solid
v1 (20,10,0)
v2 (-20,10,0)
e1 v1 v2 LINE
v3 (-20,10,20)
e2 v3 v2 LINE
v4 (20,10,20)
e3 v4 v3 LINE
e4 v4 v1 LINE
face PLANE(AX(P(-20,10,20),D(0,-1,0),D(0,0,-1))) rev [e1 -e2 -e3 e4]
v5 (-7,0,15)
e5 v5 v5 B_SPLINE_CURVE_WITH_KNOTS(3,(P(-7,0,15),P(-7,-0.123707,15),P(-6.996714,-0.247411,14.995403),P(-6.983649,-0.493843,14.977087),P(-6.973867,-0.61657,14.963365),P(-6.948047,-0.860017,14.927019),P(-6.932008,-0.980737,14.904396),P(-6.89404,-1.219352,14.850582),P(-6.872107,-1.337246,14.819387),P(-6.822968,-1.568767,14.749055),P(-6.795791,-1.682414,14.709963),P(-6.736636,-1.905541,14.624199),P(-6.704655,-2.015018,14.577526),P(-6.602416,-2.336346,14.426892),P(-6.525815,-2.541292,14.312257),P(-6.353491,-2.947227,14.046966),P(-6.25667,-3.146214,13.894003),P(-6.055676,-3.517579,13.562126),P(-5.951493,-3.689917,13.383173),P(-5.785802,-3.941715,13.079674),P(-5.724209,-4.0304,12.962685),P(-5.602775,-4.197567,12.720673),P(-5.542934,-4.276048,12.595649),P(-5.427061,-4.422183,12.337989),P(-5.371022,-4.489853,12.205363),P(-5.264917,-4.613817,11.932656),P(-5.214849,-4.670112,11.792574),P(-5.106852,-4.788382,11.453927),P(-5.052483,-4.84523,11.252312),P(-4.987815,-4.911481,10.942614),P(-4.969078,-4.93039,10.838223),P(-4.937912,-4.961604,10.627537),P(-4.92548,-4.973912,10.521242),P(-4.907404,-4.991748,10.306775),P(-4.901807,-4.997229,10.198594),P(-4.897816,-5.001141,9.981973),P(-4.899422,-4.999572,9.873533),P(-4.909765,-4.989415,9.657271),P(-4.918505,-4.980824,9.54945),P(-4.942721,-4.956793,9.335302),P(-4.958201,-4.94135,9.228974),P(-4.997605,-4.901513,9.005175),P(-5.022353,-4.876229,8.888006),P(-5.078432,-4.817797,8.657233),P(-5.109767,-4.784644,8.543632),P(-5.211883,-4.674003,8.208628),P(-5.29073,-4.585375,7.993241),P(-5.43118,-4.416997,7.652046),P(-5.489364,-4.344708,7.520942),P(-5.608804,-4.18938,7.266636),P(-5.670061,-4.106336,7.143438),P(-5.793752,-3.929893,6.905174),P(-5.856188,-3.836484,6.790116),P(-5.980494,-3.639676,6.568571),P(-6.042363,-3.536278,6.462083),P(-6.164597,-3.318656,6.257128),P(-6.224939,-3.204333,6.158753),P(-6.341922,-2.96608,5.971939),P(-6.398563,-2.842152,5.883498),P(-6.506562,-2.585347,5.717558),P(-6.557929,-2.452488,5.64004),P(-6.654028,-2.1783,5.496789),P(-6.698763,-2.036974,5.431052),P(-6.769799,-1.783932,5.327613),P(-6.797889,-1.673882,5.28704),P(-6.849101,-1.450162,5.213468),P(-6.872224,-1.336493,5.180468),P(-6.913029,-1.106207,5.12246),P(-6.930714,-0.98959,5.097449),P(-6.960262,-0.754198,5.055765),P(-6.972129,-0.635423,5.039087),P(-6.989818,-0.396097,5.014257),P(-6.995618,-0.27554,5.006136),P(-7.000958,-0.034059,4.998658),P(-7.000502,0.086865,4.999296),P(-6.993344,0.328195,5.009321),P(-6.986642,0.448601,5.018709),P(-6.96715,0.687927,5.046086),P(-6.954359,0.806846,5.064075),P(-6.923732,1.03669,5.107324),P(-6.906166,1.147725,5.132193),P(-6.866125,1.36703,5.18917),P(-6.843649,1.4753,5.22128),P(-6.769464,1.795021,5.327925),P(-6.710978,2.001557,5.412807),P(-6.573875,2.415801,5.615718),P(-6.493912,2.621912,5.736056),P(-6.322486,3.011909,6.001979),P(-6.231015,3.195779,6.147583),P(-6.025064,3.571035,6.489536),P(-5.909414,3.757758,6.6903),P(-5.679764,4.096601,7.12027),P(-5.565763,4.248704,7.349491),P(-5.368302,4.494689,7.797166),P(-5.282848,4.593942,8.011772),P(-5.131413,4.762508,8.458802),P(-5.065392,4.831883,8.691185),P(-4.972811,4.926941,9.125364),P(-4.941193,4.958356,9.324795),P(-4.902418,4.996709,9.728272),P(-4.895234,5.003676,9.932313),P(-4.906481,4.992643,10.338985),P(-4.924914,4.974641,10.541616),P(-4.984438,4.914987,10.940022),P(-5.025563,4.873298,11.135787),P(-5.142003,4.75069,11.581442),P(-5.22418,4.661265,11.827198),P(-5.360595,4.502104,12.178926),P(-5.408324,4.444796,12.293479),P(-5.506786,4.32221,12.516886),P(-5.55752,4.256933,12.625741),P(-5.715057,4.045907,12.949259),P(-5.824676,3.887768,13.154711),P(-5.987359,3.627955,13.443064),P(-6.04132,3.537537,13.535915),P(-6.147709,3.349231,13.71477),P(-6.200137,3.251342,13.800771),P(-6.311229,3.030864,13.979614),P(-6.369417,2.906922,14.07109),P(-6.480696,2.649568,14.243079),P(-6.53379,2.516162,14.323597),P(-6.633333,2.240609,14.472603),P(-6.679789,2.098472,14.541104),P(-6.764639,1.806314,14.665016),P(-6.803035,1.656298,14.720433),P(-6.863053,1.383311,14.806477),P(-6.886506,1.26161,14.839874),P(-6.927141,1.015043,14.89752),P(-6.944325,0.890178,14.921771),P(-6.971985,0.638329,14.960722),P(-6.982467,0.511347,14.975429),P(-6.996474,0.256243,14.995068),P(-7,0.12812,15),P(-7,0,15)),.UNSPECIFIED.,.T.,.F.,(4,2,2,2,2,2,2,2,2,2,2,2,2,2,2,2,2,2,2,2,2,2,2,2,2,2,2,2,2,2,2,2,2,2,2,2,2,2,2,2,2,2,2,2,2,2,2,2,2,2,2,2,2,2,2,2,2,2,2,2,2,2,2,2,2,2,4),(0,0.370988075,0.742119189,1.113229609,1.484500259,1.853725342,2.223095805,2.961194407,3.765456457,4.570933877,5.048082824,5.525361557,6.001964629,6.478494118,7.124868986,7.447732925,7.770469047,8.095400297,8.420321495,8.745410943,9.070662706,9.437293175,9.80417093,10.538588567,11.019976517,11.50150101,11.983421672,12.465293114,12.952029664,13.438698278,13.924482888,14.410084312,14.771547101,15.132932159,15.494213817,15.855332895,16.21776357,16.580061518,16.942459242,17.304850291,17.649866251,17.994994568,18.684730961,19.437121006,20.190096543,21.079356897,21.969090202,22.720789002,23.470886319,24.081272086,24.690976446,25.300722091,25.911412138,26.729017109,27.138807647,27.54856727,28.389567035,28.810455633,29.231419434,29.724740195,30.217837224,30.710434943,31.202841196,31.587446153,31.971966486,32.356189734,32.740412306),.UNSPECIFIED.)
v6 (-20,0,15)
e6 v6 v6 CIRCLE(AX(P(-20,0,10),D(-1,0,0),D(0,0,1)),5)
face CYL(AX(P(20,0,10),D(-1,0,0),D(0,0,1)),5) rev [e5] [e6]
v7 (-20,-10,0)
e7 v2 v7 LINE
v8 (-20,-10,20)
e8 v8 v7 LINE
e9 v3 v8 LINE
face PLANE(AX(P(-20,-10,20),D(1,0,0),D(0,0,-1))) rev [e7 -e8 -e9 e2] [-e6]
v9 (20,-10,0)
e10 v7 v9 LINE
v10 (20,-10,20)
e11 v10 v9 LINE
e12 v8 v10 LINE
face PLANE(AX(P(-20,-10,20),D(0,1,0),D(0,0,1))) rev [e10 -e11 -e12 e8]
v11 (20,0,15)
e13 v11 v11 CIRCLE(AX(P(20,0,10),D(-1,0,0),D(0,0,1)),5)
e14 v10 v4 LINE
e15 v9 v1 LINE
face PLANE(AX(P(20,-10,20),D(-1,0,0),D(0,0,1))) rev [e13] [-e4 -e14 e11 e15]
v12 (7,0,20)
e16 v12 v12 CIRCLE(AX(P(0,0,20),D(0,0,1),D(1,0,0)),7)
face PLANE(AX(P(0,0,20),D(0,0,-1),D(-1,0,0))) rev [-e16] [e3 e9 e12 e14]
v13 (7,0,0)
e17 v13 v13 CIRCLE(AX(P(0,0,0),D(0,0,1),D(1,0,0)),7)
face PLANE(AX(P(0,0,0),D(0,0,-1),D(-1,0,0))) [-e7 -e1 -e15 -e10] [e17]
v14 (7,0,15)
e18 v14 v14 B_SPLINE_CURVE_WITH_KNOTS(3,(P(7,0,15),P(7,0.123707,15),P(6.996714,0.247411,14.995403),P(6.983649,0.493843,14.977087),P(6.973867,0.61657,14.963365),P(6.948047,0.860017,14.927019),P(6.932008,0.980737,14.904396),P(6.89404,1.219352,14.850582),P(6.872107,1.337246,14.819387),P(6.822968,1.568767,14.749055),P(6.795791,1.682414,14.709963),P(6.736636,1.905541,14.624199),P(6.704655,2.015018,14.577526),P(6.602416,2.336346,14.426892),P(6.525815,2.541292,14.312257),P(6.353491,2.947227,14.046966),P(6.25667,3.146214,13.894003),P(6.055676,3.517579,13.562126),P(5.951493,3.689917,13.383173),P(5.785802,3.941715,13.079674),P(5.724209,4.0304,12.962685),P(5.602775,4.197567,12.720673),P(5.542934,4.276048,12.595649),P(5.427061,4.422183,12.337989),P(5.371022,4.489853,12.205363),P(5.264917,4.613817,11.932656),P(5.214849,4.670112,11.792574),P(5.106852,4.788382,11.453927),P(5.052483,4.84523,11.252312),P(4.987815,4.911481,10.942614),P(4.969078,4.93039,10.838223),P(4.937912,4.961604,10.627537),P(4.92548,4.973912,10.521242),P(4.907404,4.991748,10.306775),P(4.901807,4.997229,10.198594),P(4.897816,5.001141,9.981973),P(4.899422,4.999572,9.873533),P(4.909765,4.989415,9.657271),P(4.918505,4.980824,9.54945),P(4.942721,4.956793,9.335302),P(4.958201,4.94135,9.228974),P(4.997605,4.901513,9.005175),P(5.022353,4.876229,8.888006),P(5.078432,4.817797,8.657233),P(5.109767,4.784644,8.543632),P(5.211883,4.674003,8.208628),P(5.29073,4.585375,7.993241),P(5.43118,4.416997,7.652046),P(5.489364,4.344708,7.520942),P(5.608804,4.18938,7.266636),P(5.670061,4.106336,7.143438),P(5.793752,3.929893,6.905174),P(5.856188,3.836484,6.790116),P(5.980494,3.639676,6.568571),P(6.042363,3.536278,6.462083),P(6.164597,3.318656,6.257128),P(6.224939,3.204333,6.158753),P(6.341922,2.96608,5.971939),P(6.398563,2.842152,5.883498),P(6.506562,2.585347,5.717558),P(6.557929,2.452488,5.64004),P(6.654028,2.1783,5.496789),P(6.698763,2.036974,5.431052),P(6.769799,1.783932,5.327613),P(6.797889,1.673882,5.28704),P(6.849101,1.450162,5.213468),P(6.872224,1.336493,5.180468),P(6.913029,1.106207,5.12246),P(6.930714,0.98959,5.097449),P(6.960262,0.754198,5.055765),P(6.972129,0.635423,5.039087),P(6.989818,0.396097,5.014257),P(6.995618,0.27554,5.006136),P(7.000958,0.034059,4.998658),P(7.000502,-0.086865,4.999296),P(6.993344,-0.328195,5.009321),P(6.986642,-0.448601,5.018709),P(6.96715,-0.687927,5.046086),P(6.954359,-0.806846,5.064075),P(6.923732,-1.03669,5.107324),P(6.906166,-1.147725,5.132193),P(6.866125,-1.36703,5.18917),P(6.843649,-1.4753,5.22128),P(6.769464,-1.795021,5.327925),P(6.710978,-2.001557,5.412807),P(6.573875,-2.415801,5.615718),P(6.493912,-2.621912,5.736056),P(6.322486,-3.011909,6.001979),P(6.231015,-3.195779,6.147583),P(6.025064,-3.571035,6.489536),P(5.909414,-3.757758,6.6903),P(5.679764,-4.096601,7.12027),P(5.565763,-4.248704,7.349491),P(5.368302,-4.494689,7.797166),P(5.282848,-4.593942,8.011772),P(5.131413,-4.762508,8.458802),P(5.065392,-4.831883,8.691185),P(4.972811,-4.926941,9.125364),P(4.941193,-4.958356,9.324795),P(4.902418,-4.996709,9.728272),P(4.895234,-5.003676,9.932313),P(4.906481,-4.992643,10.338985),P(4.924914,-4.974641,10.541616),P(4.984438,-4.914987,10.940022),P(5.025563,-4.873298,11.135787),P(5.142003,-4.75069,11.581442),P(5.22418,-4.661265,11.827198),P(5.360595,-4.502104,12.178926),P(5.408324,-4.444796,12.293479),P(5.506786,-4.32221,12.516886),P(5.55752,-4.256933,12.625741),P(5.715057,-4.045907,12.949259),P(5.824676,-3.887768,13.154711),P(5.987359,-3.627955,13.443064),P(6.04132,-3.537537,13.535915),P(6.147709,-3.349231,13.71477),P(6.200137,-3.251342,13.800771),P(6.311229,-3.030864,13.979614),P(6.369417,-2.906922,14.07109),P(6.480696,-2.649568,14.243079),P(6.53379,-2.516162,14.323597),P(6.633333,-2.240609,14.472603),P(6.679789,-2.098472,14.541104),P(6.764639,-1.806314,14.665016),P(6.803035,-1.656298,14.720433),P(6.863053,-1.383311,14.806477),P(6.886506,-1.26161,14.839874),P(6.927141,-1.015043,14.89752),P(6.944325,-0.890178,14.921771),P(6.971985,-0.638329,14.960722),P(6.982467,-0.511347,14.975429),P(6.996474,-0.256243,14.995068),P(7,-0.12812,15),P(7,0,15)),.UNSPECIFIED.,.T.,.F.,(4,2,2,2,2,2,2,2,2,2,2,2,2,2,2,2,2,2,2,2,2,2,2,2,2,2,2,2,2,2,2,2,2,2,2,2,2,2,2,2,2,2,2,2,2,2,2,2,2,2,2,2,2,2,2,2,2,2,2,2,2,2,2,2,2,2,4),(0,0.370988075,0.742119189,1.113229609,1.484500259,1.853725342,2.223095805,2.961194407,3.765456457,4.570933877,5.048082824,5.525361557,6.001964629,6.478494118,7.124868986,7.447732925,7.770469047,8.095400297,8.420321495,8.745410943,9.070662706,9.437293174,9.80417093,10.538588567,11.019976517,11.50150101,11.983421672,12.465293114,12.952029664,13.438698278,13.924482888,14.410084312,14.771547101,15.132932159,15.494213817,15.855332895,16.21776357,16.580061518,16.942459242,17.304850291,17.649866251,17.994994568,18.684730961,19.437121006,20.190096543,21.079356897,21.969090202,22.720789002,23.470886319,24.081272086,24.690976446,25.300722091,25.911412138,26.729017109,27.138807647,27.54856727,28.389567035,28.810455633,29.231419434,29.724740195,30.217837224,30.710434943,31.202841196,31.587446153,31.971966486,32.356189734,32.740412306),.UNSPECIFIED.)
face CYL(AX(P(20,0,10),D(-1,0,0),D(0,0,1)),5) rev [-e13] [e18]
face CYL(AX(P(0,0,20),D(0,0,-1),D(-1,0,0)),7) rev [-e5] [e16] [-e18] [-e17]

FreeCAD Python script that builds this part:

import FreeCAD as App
import Part
import Sketcher
from FreeCAD import Vector


def add_polygon(sketch, points):
    """Adds a closed chain of lines whose ends are joined by coincident constraints."""
    first, n = sketch.GeometryCount, len(points)
    for a, b in zip(points, points[1:] + points[:1]):
        sketch.addGeometry(Part.LineSegment(App.Vector(*a, 0), App.Vector(*b, 0)), False)
    for i in range(n):
        sketch.addConstraint(Sketcher.Constraint("Coincident", first + i, 2, first + (i + 1) % n, 1))

doc = App.newDocument("Part")
body = doc.addObject("PartDesign::Body", "Body")

sketch1 = doc.addObject("Sketcher::SketchObject", "Sketch")
body.addObject(sketch1)
sketch1.AttachmentSupport = (doc.XY_Plane, [""])
sketch1.MapMode = "FlatFace"
add_polygon(sketch1, [(-20, 10), (-20, -10), (20, -10), (20, 10)])
sketch1.addGeometry(Part.Circle(Vector(0, 0, 0), Vector(0, 0, 1), 7), False)
sketch1.addConstraint([
    Sketcher.Constraint("Vertical", 0),
    Sketcher.Constraint("Horizontal", 1),
    Sketcher.Constraint("Vertical", 2),
    Sketcher.Constraint("Horizontal", 3),
    Sketcher.Constraint("Coincident", 4, 3, -1, 1),
    Sketcher.Constraint("Symmetric", 0, 2, 2, 2, -1, 1),
    Sketcher.Constraint("Diameter", 4, 14.0),
    Sketcher.Constraint("DistanceX", 1, 1, 1, 2, 40.0),
    Sketcher.Constraint("DistanceY", 0, 2, 0, 1, 20.0),
])
pad1 = doc.addObject("PartDesign::Pad", "Pad")
body.addObject(pad1)
pad1.Profile = sketch1
pad1.Length = 20

sketch2 = doc.addObject("Sketcher::SketchObject", "Sketch001")
body.addObject(sketch2)
sketch2.AttachmentSupport = (doc.YZ_Plane, [""])
sketch2.MapMode = "FlatFace"
sketch2.AttachmentOffset = App.Placement(Vector(0, 0, -20), App.Rotation())
sketch2.addGeometry(Part.Circle(Vector(0, 10, 0), Vector(0, 0, 1), 5), False)
sketch2.addConstraint([
    Sketcher.Constraint("PointOnObject", 0, 3, -2),
    Sketcher.Constraint("Diameter", 0, 10.0),
    Sketcher.Constraint("DistanceY", -1, 1, 0, 3, 10.0),
])
pocket1 = doc.addObject("PartDesign::Pocket", "Pocket")
body.addObject(pocket1)
pocket1.Profile = sketch2
pocket1.Type = "ThroughAll"
pocket1.Reversed = True

doc.recompute()
